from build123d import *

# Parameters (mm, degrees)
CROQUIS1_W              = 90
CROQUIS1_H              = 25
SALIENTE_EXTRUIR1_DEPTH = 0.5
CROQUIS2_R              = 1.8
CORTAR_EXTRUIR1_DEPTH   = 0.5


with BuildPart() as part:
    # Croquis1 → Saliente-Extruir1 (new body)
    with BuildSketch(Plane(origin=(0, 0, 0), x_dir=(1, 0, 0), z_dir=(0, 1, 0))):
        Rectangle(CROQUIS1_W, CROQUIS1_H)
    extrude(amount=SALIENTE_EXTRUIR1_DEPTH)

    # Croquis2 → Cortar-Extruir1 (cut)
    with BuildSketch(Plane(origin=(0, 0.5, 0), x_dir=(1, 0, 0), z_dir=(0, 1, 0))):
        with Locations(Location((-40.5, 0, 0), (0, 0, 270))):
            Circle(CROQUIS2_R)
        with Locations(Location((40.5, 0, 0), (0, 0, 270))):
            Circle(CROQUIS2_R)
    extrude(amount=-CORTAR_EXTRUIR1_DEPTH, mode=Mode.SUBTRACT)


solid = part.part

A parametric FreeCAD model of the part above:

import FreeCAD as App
import Part
import Sketcher

doc = App.newDocument("Part")
body = doc.addObject("PartDesign::Body", "Body")

sketch1 = body.newObject("Sketcher::SketchObject", "Sketch")
sketch1.AttachmentSupport = (doc.getObject("XZ_Plane"), [""])
sketch1.MapMode = "FlatFace"
sketch1.addGeometry([
    Part.LineSegment(App.Vector(-45, -12.5, 0), App.Vector(-45, 12.5, 0)),
    Part.LineSegment(App.Vector(-45, 12.5, 0), App.Vector(45, 12.5, 0)),
    Part.LineSegment(App.Vector(45, 12.5, 0), App.Vector(45, -12.5, 0)),
    Part.LineSegment(App.Vector(45, -12.5, 0), App.Vector(-45, -12.5, 0)),
], False)
sketch1.addConstraint([
    Sketcher.Constraint("Coincident", 0, 2, 1, 1),
    Sketcher.Constraint("Coincident", 1, 2, 2, 1),
    Sketcher.Constraint("Coincident", 2, 2, 3, 1),
    Sketcher.Constraint("Coincident", 3, 2, 0, 1),
    Sketcher.Constraint("Vertical", 0),
    Sketcher.Constraint("Horizontal", 1),
    Sketcher.Constraint("Vertical", 2),
    Sketcher.Constraint("Horizontal", 3),
    Sketcher.Constraint("Symmetric", 0, 2, 2, 2, -1, 1),
    Sketcher.Constraint("DistanceX", 1, 1, 1, 2, 90.0),
    Sketcher.Constraint("DistanceY", 0, 1, 0, 2, 25.0),
])
pad1 = body.newObject("PartDesign::Pad", "Pad")
pad1.Profile = sketch1
pad1.Length = 0.5
pad1.Reversed = True

sketch2 = body.newObject("Sketcher::SketchObject", "Sketch001")
sketch2.AttachmentSupport = (doc.getObject("XZ_Plane"), [""])
sketch2.MapMode = "FlatFace"
sketch2.AttachmentOffset = App.Placement(App.Vector(0, 0, -0.5), App.Rotation())
sketch2.addGeometry([
    Part.Circle(App.Vector(-40.5, 0, 0), App.Vector(0, 0, 1), 1.8),
    Part.Circle(App.Vector(40.5, 0, 0), App.Vector(0, 0, 1), 1.8),
], False)
sketch2.addConstraint([
    Sketcher.Constraint("Equal", 0, 1),
    Sketcher.Constraint("Symmetric", 0, 3, 1, 3, -1, 1),
    Sketcher.Constraint("PointOnObject", 0, 3, -1),
    Sketcher.Constraint("Diameter", 0, 3.6),
    Sketcher.Constraint("DistanceX", 0, 3, 1, 3, 81.0),
])
pocket1 = body.newObject("PartDesign::Pocket", "Pocket")
pocket1.Profile = sketch2
pocket1.Length = 0.5
pocket1.Reversed = True

doc.recompute()
